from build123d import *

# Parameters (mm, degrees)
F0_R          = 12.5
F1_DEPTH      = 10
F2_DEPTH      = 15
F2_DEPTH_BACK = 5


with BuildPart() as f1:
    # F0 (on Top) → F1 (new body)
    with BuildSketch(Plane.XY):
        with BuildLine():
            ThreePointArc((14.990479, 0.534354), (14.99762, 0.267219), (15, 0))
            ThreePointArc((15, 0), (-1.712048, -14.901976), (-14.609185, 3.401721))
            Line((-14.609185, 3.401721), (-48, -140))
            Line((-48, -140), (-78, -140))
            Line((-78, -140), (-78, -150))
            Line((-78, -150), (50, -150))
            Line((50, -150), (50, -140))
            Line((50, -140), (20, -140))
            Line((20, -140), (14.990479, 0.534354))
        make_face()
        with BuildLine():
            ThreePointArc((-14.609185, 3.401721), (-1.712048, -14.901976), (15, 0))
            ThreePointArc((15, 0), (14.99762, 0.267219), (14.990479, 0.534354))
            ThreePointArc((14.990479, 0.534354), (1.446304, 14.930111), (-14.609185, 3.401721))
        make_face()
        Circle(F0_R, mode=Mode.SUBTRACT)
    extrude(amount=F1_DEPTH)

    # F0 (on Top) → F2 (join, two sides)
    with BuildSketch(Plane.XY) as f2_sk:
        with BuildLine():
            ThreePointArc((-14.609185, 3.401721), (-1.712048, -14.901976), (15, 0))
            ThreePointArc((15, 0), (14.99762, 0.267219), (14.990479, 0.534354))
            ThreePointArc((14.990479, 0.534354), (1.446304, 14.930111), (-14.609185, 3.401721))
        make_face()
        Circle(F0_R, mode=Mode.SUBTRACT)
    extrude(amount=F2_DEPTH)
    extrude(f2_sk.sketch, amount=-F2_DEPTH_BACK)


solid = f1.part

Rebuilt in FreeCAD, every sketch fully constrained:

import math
import FreeCAD as App
import Part
import Sketcher

V = App.Vector
Q = App.Units.Quantity

doc = App.newDocument("Part")
params = doc.addObject("Spreadsheet::Sheet", "Params")
for row, (alias, value) in enumerate([
    ("sketch1_diameter", "25 mm"),
    ("sketch1_radius", "15 mm"),
    ("sketch1_width", "30 mm"),
    ("sketch1_width2", "128 mm"),
    ("sketch1_height", "10 mm"),
    ("pad1_length", "10 mm"),
    ("sketch2_diameter", "25 mm"),
    ("sketch2_radius", "15 mm"),
    ("pad2_length", "15 mm"),
    ("pad2_length2", "5 mm"),
], start=1):
    params.set(f"A{row}", alias)
    params.set(f"B{row}", "=" + value)
    params.setAlias(f"B{row}", alias)

body = doc.addObject("PartDesign::Body", "Body")

# Sketch on XY plane
sketch1 = body.newObject("Sketcher::SketchObject", "Sketch")
sketch1.AttachmentSupport = (doc.getObject("XY_Plane"), [""])
sketch1.MapMode = "FlatFace"
sketch1.addGeometry(Part.LineSegment(V(-15, 3, 0), V(-48, -140, 0)), False)
sketch1.addGeometry(Part.LineSegment(V(-48, -140, 0), V(-78, -140, 0)), False)
sketch1.addGeometry(Part.LineSegment(V(-78, -140, 0), V(-78, -150, 0)), False)
sketch1.addGeometry(Part.LineSegment(V(-78, -150, 0), V(50, -150, 0)), False)
sketch1.addGeometry(Part.LineSegment(V(50, -150, 0), V(50, -140, 0)), False)
sketch1.addGeometry(Part.LineSegment(V(50, -140, 0), V(20, -140, 0)), False)
sketch1.addGeometry(Part.LineSegment(V(20, -140, 0), V(15, 1, 0)), False)
sketch1.addGeometry(Part.ArcOfCircle(Part.Circle(V(0, 0, 0), V(0, 0, 1), 15), math.radians(2), math.radians(167)), False)
sketch1.addGeometry(Part.Circle(V(0, 0, 0), V(0, 0, 1), 12), False)
sketch1.addConstraint(Sketcher.Constraint("Coincident", 0, 2, 1, 1))
sketch1.addConstraint(Sketcher.Constraint("Coincident", 1, 2, 2, 1))
sketch1.addConstraint(Sketcher.Constraint("Coincident", 2, 2, 3, 1))
sketch1.addConstraint(Sketcher.Constraint("Coincident", 3, 2, 4, 1))
sketch1.addConstraint(Sketcher.Constraint("Coincident", 4, 2, 5, 1))
sketch1.addConstraint(Sketcher.Constraint("Coincident", 5, 2, 6, 1))
sketch1.addConstraint(Sketcher.Constraint("Tangent", 6, 2, 7, 1))
sketch1.addConstraint(Sketcher.Constraint("Tangent", 7, 2, 0, 1))
sketch1.addConstraint(Sketcher.Constraint("Horizontal", 1))
sketch1.addConstraint(Sketcher.Constraint("Vertical", 2))
sketch1.addConstraint(Sketcher.Constraint("Horizontal", 3))
sketch1.addConstraint(Sketcher.Constraint("Vertical", 4))
sketch1.addConstraint(Sketcher.Constraint("Horizontal", 5))
sketch1.addConstraint(Sketcher.Constraint("Coincident", 7, 3, -1, 1))
sketch1.addConstraint(Sketcher.Constraint("Coincident", 8, 3, -1, 1))
sketch1.addConstraint(Sketcher.Constraint("Horizontal", 1, 2, 4, 2))
sketch1.addConstraint(Sketcher.Constraint("Equal", 1, 5))
sketch1.addConstraint(Sketcher.Constraint("Diameter", 8, Q("25 mm")))
sketch1.addConstraint(Sketcher.Constraint("Radius", 7, Q("15 mm")))
sketch1.addConstraint(Sketcher.Constraint("DistanceX", 1, 2, 1, 1, Q("30 mm")))
sketch1.addConstraint(Sketcher.Constraint("DistanceX", 3, 1, 3, 2, Q("128 mm")))
sketch1.addConstraint(Sketcher.Constraint("DistanceY", 2, 2, 2, 1, Q("10 mm")))
sketch1.addConstraint(Sketcher.Constraint("DistanceX", 0, 2, -1, 1, Q("48 mm")))
sketch1.addConstraint(Sketcher.Constraint("DistanceY", 0, 2, -1, 1, Q("140 mm")))
sketch1.setExpression("Constraints[17]", "Params.sketch1_diameter")
sketch1.setExpression("Constraints[18]", "Params.sketch1_radius")
sketch1.setExpression("Constraints[19]", "Params.sketch1_width")
sketch1.setExpression("Constraints[20]", "Params.sketch1_width2")
sketch1.setExpression("Constraints[21]", "Params.sketch1_height")
pad1 = body.newObject("PartDesign::Pad", "Pad")
pad1.Profile = sketch1
pad1.setExpression("Length", "Params.pad1_length")

# Sketch on XY plane
sketch2 = body.newObject("Sketcher::SketchObject", "Sketch001")
sketch2.AttachmentSupport = (doc.getObject("XY_Plane"), [""])
sketch2.MapMode = "FlatFace"
sketch2.addGeometry(Part.ArcOfCircle(Part.Circle(V(0, 0, 0), V(0, 0, 1), 15), math.radians(167), math.radians(360)), False)
sketch2.addGeometry(Part.ArcOfCircle(Part.Circle(V(0, 0, 0), V(0, 0, 1), 15), math.radians(0), math.radians(2.04)), False)
sketch2.addGeometry(Part.ArcOfCircle(Part.Circle(V(0, 0, 0), V(0, 0, 1), 15), math.radians(2), math.radians(167)), False)
sketch2.addGeometry(Part.Circle(V(0, 0, 0), V(0, 0, 1), 12.5), False)
sketch2.addConstraint(Sketcher.Constraint("Coincident", 0, 2, 1, 1))
sketch2.addConstraint(Sketcher.Constraint("Coincident", 1, 2, 2, 1))
sketch2.addConstraint(Sketcher.Constraint("Tangent", 2, 2, 0, 1))
sketch2.addConstraint(Sketcher.Constraint("Coincident", 0, 3, -1, 1))
sketch2.addConstraint(Sketcher.Constraint("Coincident", 3, 3, -1, 1))
sketch2.addConstraint(Sketcher.Constraint("Equal", 0, 2))
sketch2.addConstraint(Sketcher.Constraint("PointOnObject", 0, 2, -1))
sketch2.addConstraint(Sketcher.Constraint("Diameter", 3, Q("25 mm")))
sketch2.addConstraint(Sketcher.Constraint("Radius", 0, Q("15 mm")))
sketch2.addConstraint(Sketcher.Constraint("Radius", 1, Q("14.997011 mm")))
sketch2.addConstraint(Sketcher.Constraint("DistanceX", -1, 1, 1, 2, Q("14.990479 mm")))
sketch2.addConstraint(Sketcher.Constraint("DistanceY", -1, 1, 2, 2, Q("3.401721 mm")))
sketch2.setExpression("Constraints[7]", "Params.sketch2_diameter")
sketch2.setExpression("Constraints[8]", "Params.sketch2_radius")
pad2 = body.newObject("PartDesign::Pad", "Pad001")
pad2.Profile = sketch2
pad2.Type = "TwoLengths"
pad2.setExpression("Length", "Params.pad2_length")
pad2.setExpression("Length2", "Params.pad2_length2")

doc.recompute()
